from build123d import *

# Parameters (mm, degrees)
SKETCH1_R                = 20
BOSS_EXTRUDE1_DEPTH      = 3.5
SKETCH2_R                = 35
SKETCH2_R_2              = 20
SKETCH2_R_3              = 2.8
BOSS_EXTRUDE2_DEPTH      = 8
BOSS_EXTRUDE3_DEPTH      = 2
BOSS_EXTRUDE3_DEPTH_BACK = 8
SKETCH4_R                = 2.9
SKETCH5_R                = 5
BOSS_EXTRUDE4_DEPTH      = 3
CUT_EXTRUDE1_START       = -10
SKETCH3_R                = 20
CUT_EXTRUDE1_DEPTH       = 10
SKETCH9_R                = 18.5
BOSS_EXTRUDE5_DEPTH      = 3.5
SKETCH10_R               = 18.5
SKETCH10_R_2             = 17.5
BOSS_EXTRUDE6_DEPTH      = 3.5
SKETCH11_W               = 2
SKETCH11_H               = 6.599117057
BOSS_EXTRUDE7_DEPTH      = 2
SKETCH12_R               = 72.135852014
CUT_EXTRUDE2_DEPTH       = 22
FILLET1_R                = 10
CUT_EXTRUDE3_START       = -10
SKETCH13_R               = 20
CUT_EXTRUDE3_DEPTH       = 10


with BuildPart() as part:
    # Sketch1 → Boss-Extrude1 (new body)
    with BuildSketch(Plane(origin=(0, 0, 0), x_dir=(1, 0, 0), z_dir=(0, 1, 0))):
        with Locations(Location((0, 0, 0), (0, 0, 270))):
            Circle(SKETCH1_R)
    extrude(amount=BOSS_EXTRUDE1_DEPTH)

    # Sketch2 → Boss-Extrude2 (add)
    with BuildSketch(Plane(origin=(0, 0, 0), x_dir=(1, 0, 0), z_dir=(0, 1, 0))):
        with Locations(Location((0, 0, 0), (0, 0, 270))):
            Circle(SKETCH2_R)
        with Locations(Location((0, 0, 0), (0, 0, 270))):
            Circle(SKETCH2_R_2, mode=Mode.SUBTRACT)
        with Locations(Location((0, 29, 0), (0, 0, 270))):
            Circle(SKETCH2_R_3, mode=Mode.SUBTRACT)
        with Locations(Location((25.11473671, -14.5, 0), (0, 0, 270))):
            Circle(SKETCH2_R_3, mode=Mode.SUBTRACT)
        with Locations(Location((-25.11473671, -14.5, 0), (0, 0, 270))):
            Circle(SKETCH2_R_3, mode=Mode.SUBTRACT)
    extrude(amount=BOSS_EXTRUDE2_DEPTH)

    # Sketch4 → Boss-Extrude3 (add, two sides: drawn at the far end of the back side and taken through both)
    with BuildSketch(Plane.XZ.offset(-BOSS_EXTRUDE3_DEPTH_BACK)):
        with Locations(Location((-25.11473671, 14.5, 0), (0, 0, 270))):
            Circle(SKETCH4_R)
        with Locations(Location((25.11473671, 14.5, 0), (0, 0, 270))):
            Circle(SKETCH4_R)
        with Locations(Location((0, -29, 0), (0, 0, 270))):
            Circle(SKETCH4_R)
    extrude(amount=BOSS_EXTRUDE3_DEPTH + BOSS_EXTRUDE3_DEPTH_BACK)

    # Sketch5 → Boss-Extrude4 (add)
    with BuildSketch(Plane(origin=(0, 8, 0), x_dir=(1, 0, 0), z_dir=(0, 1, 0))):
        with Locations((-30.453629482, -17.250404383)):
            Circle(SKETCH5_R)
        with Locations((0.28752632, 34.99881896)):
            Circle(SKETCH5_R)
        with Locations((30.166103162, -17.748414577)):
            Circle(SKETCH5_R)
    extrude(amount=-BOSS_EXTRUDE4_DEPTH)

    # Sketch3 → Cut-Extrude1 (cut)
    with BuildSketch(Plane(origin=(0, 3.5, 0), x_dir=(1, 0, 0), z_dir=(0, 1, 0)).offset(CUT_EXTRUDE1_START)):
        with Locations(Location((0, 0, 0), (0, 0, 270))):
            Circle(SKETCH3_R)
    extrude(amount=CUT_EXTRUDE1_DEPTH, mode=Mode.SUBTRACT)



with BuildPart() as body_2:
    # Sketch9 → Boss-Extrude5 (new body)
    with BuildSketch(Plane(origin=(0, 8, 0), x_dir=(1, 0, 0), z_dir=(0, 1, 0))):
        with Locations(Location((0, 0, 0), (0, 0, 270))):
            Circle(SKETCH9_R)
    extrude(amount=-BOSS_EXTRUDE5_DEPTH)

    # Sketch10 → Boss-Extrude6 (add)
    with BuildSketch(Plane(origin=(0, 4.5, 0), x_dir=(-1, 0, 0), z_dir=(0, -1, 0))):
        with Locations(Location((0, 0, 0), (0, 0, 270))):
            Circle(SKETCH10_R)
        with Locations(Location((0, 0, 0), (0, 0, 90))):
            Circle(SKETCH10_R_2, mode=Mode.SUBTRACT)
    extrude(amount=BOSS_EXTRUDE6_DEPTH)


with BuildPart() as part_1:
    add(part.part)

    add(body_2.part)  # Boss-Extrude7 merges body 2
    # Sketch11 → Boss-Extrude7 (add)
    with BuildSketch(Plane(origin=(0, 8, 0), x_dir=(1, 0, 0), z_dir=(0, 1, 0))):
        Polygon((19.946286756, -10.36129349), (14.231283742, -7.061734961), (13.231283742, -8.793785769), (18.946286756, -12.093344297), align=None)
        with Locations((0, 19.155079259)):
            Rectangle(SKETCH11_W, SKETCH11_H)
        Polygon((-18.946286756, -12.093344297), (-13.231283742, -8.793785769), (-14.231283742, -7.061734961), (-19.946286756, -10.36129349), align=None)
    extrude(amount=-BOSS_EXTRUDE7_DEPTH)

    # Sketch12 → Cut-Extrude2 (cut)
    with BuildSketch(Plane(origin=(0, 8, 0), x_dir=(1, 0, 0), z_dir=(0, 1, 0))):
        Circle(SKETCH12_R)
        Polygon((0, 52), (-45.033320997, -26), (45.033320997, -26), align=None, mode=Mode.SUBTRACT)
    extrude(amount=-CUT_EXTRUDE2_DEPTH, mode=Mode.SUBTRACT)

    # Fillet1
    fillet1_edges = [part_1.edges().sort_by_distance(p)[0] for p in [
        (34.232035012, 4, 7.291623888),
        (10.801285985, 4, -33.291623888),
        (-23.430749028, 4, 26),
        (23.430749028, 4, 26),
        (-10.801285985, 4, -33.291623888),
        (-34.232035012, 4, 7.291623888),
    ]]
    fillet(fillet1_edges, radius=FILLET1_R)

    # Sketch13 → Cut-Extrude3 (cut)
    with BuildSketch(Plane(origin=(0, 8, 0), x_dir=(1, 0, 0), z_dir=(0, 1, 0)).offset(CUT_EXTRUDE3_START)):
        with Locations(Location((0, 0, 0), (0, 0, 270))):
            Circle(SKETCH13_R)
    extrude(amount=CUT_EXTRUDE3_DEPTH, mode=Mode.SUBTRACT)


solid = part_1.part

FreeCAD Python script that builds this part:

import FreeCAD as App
import Part
import Sketcher
Q = App.Units.Quantity


def edges_at(feature, points):
    """Names of the edges that pass closest to the given points."""
    edges = feature.Shape.Edges
    near = lambda p: min(range(len(edges)), key=lambda i: edges[i].distToShape(Part.Vertex(*p))[0])
    return sorted({f"Edge{near(p) + 1}" for p in points})


def add_polygon(sketch, points):
    """Adds a closed chain of lines whose ends are joined by coincident constraints."""
    first, n = sketch.GeometryCount, len(points)
    for a, b in zip(points, points[1:] + points[:1]):
        sketch.addGeometry(Part.LineSegment(App.Vector(*a, 0), App.Vector(*b, 0)), False)
    for i in range(n):
        sketch.addConstraint(Sketcher.Constraint("Coincident", first + i, 2, first + (i + 1) % n, 1))

doc = App.newDocument("Part")
body = doc.addObject("PartDesign::Body", "Body")

# Sketch on XZ plane
sketch1 = body.newObject("Sketcher::SketchObject", "Sketch")
sketch1.AttachmentSupport = (doc.getObject("XZ_Plane"), [""])
sketch1.MapMode = "FlatFace"
sketch1.addGeometry(Part.Circle(App.Vector(0, 0, 0), App.Vector(0, 0, 1), 20), False)
sketch1.addConstraint(Sketcher.Constraint("Coincident", 0, 3, -1, 1))
sketch1.addConstraint(Sketcher.Constraint("Diameter", 0, 40.0))
pad1 = body.newObject("PartDesign::Pad", "Pad")
pad1.Profile = sketch1
pad1.Length = 3.5
pad1.Reversed = True

# Sketch on XZ plane
sketch2 = body.newObject("Sketcher::SketchObject", "Sketch001")
sketch2.AttachmentSupport = (doc.getObject("XZ_Plane"), [""])
sketch2.MapMode = "FlatFace"
sketch2.addGeometry(Part.Circle(App.Vector(0, 0, 0), App.Vector(0, 0, 1), 35), False)
sketch2.addGeometry(Part.Circle(App.Vector(0, -29, 0), App.Vector(0, 0, 1), 2.8), False)
sketch2.addGeometry(Part.Circle(App.Vector(-25.1, 14.5, 0), App.Vector(0, 0, 1), 2.8), False)
sketch2.addGeometry(Part.Circle(App.Vector(0, 0, 0), App.Vector(0, 0, 1), 20), False)
sketch2.addGeometry(Part.Circle(App.Vector(25.1, 14.5, 0), App.Vector(0, 0, 1), 2.8), False)
sketch2.addConstraint(Sketcher.Constraint("Coincident", 0, 3, -1, 1))
sketch2.addConstraint(Sketcher.Constraint("Coincident", 3, 3, -1, 1))
sketch2.addConstraint(Sketcher.Constraint("Equal", 1, 2))
sketch2.addConstraint(Sketcher.Constraint("Equal", 2, 4))
sketch2.addConstraint(Sketcher.Constraint("Symmetric", 2, 3, 4, 3, -2))
sketch2.addConstraint(Sketcher.Constraint("PointOnObject", 1, 3, -2))
sketch2.addConstraint(Sketcher.Constraint("Diameter", 0, 70.0))
sketch2.addConstraint(Sketcher.Constraint("Diameter", 3, 40.0))
sketch2.addConstraint(Sketcher.Constraint("Diameter", 1, 5.6))
sketch2.addConstraint(Sketcher.Constraint("DistanceY", 1, 3, -1, 1, 29.0))
sketch2.addConstraint(Sketcher.Constraint("DistanceY", -1, 1, 2, 3, 14.5))
sketch2.addConstraint(Sketcher.Constraint("DistanceX", 2, 3, -1, 1, 25.114737))
pad2 = body.newObject("PartDesign::Pad", "Pad001")
pad2.Profile = sketch2
pad2.Length = 8
pad2.Reversed = True

# Sketch on XZ plane
sketch3 = body.newObject("Sketcher::SketchObject", "Sketch002")
sketch3.AttachmentSupport = (doc.getObject("XZ_Plane"), [""])
sketch3.MapMode = "FlatFace"
sketch3.addGeometry(Part.Circle(App.Vector(-25.1, 14.5, 0), App.Vector(0, 0, 1), 2.9), False)
sketch3.addGeometry(Part.Circle(App.Vector(25.1, 14.5, 0), App.Vector(0, 0, 1), 2.9), False)
sketch3.addGeometry(Part.Circle(App.Vector(0, -29, 0), App.Vector(0, 0, 1), 2.9), False)
sketch3.addConstraint(Sketcher.Constraint("Equal", 0, 1))
sketch3.addConstraint(Sketcher.Constraint("Equal", 1, 2))
sketch3.addConstraint(Sketcher.Constraint("Symmetric", 0, 3, 1, 3, -2))
sketch3.addConstraint(Sketcher.Constraint("PointOnObject", 2, 3, -2))
sketch3.addConstraint(Sketcher.Constraint("Diameter", 0, 5.8))
sketch3.addConstraint(Sketcher.Constraint("DistanceY", 2, 3, -1, 1, 29.0))
sketch3.addConstraint(Sketcher.Constraint("DistanceY", -1, 1, 0, 3, 14.5))
sketch3.addConstraint(Sketcher.Constraint("DistanceX", 0, 3, -1, 1, 25.114737))
pad3 = body.newObject("PartDesign::Pad", "Pad002")
pad3.Profile = sketch3
pad3.Type = "TwoLengths"
pad3.Length = 2
pad3.Length2 = 8

# Sketch on XZ plane
sketch4 = body.newObject("Sketcher::SketchObject", "Sketch003")
sketch4.AttachmentSupport = (doc.getObject("XZ_Plane"), [""])
sketch4.MapMode = "FlatFace"
sketch4.AttachmentOffset = App.Placement(App.Vector(0, 0, -8), App.Rotation())
sketch4.addGeometry(Part.Circle(App.Vector(-30, 17, 0), App.Vector(0, 0, 1), 5), False)
sketch4.addGeometry(Part.Circle(App.Vector(0, -35, 0), App.Vector(0, 0, 1), 5), False)
sketch4.addGeometry(Part.Circle(App.Vector(30, 18, 0), App.Vector(0, 0, 1), 5), False)
sketch4.addConstraint(Sketcher.Constraint("Equal", 0, 1))
sketch4.addConstraint(Sketcher.Constraint("Equal", 1, 2))
sketch4.addConstraint(Sketcher.Constraint("Diameter", 0, 10.0))
sketch4.addConstraint(Sketcher.Constraint("DistanceX", 0, 3, -1, 1, 30.453629))
sketch4.addConstraint(Sketcher.Constraint("DistanceY", 1, 3, -1, 1, 34.998819))
sketch4.addConstraint(Sketcher.Constraint("DistanceY", 0, 3, 2, 3, 0.49801))
sketch4.addConstraint(Sketcher.Constraint("DistanceY", -1, 1, 0, 3, 17.250404))
sketch4.addConstraint(Sketcher.Constraint("DistanceX", -1, 1, 1, 3, 0.287526))
sketch4.addConstraint(Sketcher.Constraint("DistanceX", -1, 1, 2, 3, 30.166103))
pad4 = body.newObject("PartDesign::Pad", "Pad003")
pad4.Profile = sketch4
pad4.Length = 3

# Sketch on XZ plane
sketch5 = body.newObject("Sketcher::SketchObject", "Sketch004")
sketch5.AttachmentSupport = (doc.getObject("XZ_Plane"), [""])
sketch5.MapMode = "FlatFace"
sketch5.AttachmentOffset = App.Placement(App.Vector(0, 0, 6.5), App.Rotation())
sketch5.addGeometry(Part.Circle(App.Vector(0, 0, 0), App.Vector(0, 0, 1), 20), False)
sketch5.addConstraint(Sketcher.Constraint("Coincident", 0, 3, -1, 1))
sketch5.addConstraint(Sketcher.Constraint("Diameter", 0, 40.0))
pocket1 = body.newObject("PartDesign::Pocket", "Pocket")
pocket1.Profile = sketch5
pocket1.Length = 10
body2 = doc.addObject("PartDesign::Body", "Body001")

# Sketch on XZ plane
sketch6 = body2.newObject("Sketcher::SketchObject", "Sketch005")
sketch6.AttachmentSupport = (doc.getObject("XZ_Plane001"), [""])
sketch6.MapMode = "FlatFace"
sketch6.AttachmentOffset = App.Placement(App.Vector(0, 0, -8), App.Rotation())
sketch6.addGeometry(Part.Circle(App.Vector(0, 0, 0), App.Vector(0, 0, 1), 18), False)
sketch6.addConstraint(Sketcher.Constraint("Coincident", 0, 3, -1, 1))
sketch6.addConstraint(Sketcher.Constraint("Diameter", 0, 37.0))
pad5 = body2.newObject("PartDesign::Pad", "Pad004")
pad5.Profile = sketch6
pad5.Length = 3.5

# Sketch on XZ plane
sketch7 = body2.newObject("Sketcher::SketchObject", "Sketch006")
sketch7.AttachmentSupport = (doc.getObject("XZ_Plane001"), [""])
sketch7.MapMode = "FlatFace"
sketch7.AttachmentOffset = App.Placement(App.Vector(0, 0, -4.5), App.Rotation())
sketch7.addGeometry(Part.Circle(App.Vector(0, 0, 0), App.Vector(0, 0, 1), 18), False)
sketch7.addGeometry(Part.Circle(App.Vector(0, 0, 0), App.Vector(0, 0, 1), 18), False)
sketch7.addConstraint(Sketcher.Constraint("Coincident", 0, 3, -1, 1))
sketch7.addConstraint(Sketcher.Constraint("Coincident", 1, 3, -1, 1))
sketch7.addConstraint(Sketcher.Constraint("Diameter", 0, 37.0))
sketch7.addConstraint(Sketcher.Constraint("Diameter", 1, 35.0))
pad6 = body2.newObject("PartDesign::Pad", "Pad005")
pad6.Profile = sketch7
pad6.Length = 3.5
body.AllowCompound = True
doc.recompute()

boolean = body.newObject("PartDesign::Boolean", "Boolean")
boolean.Type = "Fuse"
boolean.addObjects([body2])

# Sketch on XZ plane
sketch8 = body.newObject("Sketcher::SketchObject", "Sketch007")
sketch8.AttachmentSupport = (doc.getObject("XZ_Plane"), [""])
sketch8.MapMode = "FlatFace"
sketch8.AttachmentOffset = App.Placement(App.Vector(0, 0, -8), App.Rotation())
add_polygon(sketch8, [(19.9, 10.4), (14.2, 7.1), (13.2, 8.8), (18.9, 12.1)])  # lines 0-3
add_polygon(sketch8, [(-1, -22.5), (-1, -15.9), (1, -15.9), (1, -22.5)])  # lines 4-7
add_polygon(sketch8, [(-18.9, 12.1), (-13.2, 8.8), (-14.2, 7.1), (-19.9, 10.4)])  # lines 8-11
sketch8.addConstraint(Sketcher.Constraint("Vertical", 4))
sketch8.addConstraint(Sketcher.Constraint("Horizontal", 5))
sketch8.addConstraint(Sketcher.Constraint("Vertical", 6))
sketch8.addConstraint(Sketcher.Constraint("Horizontal", 7))
sketch8.addConstraint(Sketcher.Constraint("Symmetric", 1, 2, 8, 2, -2))
sketch8.addConstraint(Sketcher.Constraint("Symmetric", 0, 2, 9, 2, -2))
sketch8.addConstraint(Sketcher.Constraint("Symmetric", 3, 2, 10, 2, -2))
sketch8.addConstraint(Sketcher.Constraint("Symmetric", 2, 2, 11, 2, -2))
sketch8.addConstraint(Sketcher.Constraint("Perpendicular", 0, 1))
sketch8.addConstraint(Sketcher.Constraint("Perpendicular", 1, 2))
sketch8.addConstraint(Sketcher.Constraint("Perpendicular", 2, 3))
sketch8.addConstraint(Sketcher.Constraint("DistanceX", 5, 1, 5, 2, 2.0))
sketch8.addConstraint(Sketcher.Constraint("Angle", 0, Q("-150 deg")))
sketch8.addConstraint(Sketcher.Constraint("Distance", 1, 2.0))
sketch8.addConstraint(Sketcher.Constraint("DistanceX", 4, 2, -1, 1, 1.0))
sketch8.addConstraint(Sketcher.Constraint("DistanceY", 4, 1, 4, 2, 6.599117))
sketch8.addConstraint(Sketcher.Constraint("DistanceY", 4, 2, -1, 1, 15.855521))
sketch8.addConstraint(Sketcher.Constraint("DistanceY", 1, 2, 2, 2, 3.299559))
sketch8.addConstraint(Sketcher.Constraint("DistanceY", 6, 2, 3, 2, 32.815931))
sketch8.addConstraint(Sketcher.Constraint("DistanceX", 8, 2, 2, 2, 32.17757))
pad7 = body.newObject("PartDesign::Pad", "Pad006")
pad7.Profile = sketch8
pad7.Length = 2

# Sketch on XZ plane
sketch9 = body.newObject("Sketcher::SketchObject", "Sketch008")
sketch9.AttachmentSupport = (doc.getObject("XZ_Plane"), [""])
sketch9.MapMode = "FlatFace"
sketch9.AttachmentOffset = App.Placement(App.Vector(0, 0, -8), App.Rotation())
sketch9.addGeometry(Part.Circle(App.Vector(0, 0, 0), App.Vector(0, 0, 1), 72), False)  # 0
add_polygon(sketch9, [(-45, 26), (0, -52), (45, 26)])  # lines 1-3
sketch9.addConstraint(Sketcher.Constraint("Horizontal", 3))
sketch9.addConstraint(Sketcher.Constraint("Coincident", 0, 3, -1, 1))
sketch9.addConstraint(Sketcher.Constraint("PointOnObject", 1, 2, -2))
sketch9.addConstraint(Sketcher.Constraint("Equal", 1, 2))
sketch9.addConstraint(Sketcher.Constraint("Angle", 1, Q("-60 deg")))
sketch9.addConstraint(Sketcher.Constraint("DistanceY", 1, 2, -1, 1, 52.0))
sketch9.addConstraint(Sketcher.Constraint("DistanceY", -1, 1, 2, 2, 26.0))
sketch9.addConstraint(Sketcher.Constraint("Diameter", 0, 144.271704))
pocket2 = body.newObject("PartDesign::Pocket", "Pocket001")
pocket2.Profile = sketch9
pocket2.Length = 22
pocket2.Reversed = True
doc.recompute()

fillet = body.newObject("PartDesign::Fillet", "Fillet")
fillet.Base = (pocket2, edges_at(pocket2, [
    (34.232, 4, 7.292),
    (10.801, 4, -33.292),
    (-23.431, 4, 26),
    (23.431, 4, 26),
    (-10.801, 4, -33.292),
    (-34.232, 4, 7.292),
]))
fillet.Radius = 10

# Sketch on XZ plane
sketch10 = body.newObject("Sketcher::SketchObject", "Sketch009")
sketch10.AttachmentSupport = (doc.getObject("XZ_Plane"), [""])
sketch10.MapMode = "FlatFace"
sketch10.AttachmentOffset = App.Placement(App.Vector(0, 0, 2), App.Rotation())
sketch10.addGeometry(Part.Circle(App.Vector(0, 0, 0), App.Vector(0, 0, 1), 20), False)
sketch10.addConstraint(Sketcher.Constraint("Coincident", 0, 3, -1, 1))
sketch10.addConstraint(Sketcher.Constraint("Diameter", 0, 40.0))
pocket3 = body.newObject("PartDesign::Pocket", "Pocket002")
pocket3.Profile = sketch10
pocket3.Length = 10

doc.recompute()
